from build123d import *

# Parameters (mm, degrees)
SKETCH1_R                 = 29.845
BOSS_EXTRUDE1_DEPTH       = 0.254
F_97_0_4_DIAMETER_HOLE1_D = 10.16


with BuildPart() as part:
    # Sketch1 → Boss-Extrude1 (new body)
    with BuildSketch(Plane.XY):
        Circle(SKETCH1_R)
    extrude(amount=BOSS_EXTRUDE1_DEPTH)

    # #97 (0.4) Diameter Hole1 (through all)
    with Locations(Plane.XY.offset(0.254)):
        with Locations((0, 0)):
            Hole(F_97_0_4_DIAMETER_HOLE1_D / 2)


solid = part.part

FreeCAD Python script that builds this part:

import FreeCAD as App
import Part
import Sketcher

V = App.Vector
Q = App.Units.Quantity

doc = App.newDocument("Part")
params = doc.addObject("Spreadsheet::Sheet", "Params")
for row, (alias, value) in enumerate([
    ("sketch1_diameter", "2.35 in"),
    ("pad1_length", "0.01 in"),
    ("sketch2_diameter", "0.4 in"),
    ("hole_diameter", "0.4 in"),
], start=1):
    params.set(f"A{row}", alias)
    params.set(f"B{row}", "=" + value)
    params.setAlias(f"B{row}", alias)

body = doc.addObject("PartDesign::Body", "Body")

# Sketch on XY plane
sketch1 = body.newObject("Sketcher::SketchObject", "Sketch")
sketch1.AttachmentSupport = (doc.getObject("XY_Plane"), [""])
sketch1.MapMode = "FlatFace"
sketch1.addGeometry(Part.Circle(V(0, 0, 0), V(0, 0, 1), 30), False)
sketch1.addConstraint([
    Sketcher.Constraint("Coincident", 0, 3, -1, 1),
    Sketcher.Constraint("Diameter", 0, Q("2.35 in")),
])
sketch1.setExpression("Constraints[1]", "Params.sketch1_diameter")
pad1 = body.newObject("PartDesign::Pad", "Pad")
pad1.Profile = sketch1
pad1.setExpression("Length", "Params.pad1_length")

# Sketch on XY plane
sketch2 = body.newObject("Sketcher::SketchObject", "Sketch001")
sketch2.AttachmentSupport = (doc.getObject("XY_Plane"), [""])
sketch2.MapMode = "FlatFace"
sketch2.AttachmentOffset = App.Placement(V(0, 0, 0.01 * 25.4), App.Rotation())
sketch2.addGeometry(Part.Circle(V(0, 0, 0), V(0, 0, 1), 5), False)
sketch2.addConstraint([
    Sketcher.Constraint("Coincident", 0, 3, -1, 1),
    Sketcher.Constraint("Diameter", 0, Q("0.4 in")),
])
sketch2.setExpression("Constraints[1]", "Params.sketch2_diameter")
doc.recompute()
hole = body.newObject("PartDesign::Hole", "Hole")
hole.Profile = sketch2
hole.ThreadType = "None"
hole.setExpression("Diameter", "Params.hole_diameter")
hole.DepthType = "ThroughAll"

doc.recompute()
